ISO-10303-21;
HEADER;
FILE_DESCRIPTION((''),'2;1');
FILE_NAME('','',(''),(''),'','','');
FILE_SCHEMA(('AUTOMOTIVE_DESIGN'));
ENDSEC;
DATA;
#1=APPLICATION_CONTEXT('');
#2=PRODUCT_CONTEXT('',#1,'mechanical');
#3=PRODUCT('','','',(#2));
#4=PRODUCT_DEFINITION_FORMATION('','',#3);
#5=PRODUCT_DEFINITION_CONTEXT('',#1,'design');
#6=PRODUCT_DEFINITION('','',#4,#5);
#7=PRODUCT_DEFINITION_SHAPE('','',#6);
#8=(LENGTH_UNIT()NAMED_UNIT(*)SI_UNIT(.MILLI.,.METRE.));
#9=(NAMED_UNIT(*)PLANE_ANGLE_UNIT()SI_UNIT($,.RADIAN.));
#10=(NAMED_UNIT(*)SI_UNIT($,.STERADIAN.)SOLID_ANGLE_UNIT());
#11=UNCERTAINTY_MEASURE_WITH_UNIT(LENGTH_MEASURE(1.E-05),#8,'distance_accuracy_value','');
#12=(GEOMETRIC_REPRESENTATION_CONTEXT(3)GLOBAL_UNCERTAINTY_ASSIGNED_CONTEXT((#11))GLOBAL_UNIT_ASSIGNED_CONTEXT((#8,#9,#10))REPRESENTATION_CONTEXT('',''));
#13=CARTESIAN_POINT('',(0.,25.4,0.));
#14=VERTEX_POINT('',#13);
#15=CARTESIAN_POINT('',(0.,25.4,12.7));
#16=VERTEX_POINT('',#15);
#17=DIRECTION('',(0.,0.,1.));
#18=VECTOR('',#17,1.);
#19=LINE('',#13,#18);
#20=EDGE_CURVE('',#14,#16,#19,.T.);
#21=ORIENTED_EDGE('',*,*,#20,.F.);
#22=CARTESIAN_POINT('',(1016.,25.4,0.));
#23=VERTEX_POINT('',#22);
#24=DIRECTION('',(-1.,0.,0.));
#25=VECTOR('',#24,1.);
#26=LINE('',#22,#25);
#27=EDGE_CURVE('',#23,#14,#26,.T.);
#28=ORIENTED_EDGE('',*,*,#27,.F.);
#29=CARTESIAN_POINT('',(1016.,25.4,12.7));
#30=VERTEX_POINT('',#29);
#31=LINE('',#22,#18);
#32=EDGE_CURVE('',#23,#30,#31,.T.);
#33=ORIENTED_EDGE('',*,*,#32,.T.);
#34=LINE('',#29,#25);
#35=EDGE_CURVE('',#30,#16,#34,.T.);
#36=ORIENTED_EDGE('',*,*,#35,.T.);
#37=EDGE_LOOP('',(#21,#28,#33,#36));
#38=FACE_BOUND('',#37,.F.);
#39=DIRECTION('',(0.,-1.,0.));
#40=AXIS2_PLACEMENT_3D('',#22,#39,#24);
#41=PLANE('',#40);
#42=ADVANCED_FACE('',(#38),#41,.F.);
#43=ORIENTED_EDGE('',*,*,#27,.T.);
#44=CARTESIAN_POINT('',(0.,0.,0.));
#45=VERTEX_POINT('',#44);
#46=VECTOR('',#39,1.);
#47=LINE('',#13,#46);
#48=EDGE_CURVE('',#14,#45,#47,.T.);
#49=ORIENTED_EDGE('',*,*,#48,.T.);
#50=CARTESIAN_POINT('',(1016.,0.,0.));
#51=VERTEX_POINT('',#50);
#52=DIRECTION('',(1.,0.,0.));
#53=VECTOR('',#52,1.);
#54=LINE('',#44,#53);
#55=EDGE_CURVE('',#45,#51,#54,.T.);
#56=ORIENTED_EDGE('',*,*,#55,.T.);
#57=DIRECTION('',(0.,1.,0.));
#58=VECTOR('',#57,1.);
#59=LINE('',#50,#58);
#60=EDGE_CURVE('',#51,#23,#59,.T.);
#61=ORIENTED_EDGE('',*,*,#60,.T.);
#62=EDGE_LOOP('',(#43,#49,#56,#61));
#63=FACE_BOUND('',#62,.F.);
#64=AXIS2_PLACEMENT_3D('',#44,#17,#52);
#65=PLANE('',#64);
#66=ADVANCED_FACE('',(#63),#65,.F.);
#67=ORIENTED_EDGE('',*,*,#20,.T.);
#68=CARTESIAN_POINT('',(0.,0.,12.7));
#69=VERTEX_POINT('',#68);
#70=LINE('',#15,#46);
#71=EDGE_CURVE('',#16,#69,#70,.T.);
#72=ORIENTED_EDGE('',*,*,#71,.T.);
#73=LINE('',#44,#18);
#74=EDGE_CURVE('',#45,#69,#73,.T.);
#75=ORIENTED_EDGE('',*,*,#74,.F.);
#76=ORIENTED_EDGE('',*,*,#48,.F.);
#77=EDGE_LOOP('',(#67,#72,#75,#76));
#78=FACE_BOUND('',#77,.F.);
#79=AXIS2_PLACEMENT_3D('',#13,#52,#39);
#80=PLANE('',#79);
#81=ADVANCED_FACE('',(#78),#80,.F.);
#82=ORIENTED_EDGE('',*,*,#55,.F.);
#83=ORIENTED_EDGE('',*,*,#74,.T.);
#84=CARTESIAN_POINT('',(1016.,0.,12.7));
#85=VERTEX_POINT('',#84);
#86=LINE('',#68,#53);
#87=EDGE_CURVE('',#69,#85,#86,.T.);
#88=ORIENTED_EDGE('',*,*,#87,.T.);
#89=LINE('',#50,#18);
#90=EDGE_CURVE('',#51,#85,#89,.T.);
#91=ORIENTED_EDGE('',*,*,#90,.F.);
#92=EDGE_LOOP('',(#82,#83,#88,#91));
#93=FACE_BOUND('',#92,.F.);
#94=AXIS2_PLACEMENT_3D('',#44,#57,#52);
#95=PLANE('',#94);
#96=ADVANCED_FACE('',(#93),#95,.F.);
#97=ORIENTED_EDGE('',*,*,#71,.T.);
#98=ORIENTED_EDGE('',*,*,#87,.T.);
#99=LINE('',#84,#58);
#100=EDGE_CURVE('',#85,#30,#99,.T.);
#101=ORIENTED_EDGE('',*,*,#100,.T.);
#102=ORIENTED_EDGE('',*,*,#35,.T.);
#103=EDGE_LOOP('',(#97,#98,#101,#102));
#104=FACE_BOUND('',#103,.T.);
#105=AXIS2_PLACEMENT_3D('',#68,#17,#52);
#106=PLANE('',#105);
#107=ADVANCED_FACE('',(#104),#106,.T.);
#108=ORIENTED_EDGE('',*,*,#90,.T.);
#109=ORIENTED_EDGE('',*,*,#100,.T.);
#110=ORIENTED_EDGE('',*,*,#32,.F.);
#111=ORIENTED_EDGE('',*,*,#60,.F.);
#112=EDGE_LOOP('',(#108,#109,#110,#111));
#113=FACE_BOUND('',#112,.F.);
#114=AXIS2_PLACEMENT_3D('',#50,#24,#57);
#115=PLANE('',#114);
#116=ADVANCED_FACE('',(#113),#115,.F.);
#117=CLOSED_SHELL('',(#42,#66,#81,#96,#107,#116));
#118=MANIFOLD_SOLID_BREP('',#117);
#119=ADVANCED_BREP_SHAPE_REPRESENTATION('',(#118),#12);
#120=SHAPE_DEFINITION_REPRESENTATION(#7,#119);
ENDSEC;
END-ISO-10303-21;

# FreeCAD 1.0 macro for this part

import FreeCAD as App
import Part
import Sketcher
from FreeCAD import Vector
Q = App.Units.Quantity


def add_polygon(sketch, points):
    """Adds a closed chain of lines whose ends are joined by coincident constraints."""
    first, n = sketch.GeometryCount, len(points)
    for a, b in zip(points, points[1:] + points[:1]):
        sketch.addGeometry(Part.LineSegment(App.Vector(*a, 0), App.Vector(*b, 0)), False)
    for i in range(n):
        sketch.addConstraint(Sketcher.Constraint("Coincident", first + i, 2, first + (i + 1) % n, 1))

doc = App.newDocument("Part")
params = doc.addObject("Spreadsheet::Sheet", "Params")
for row, (alias, value) in enumerate([
    ("sketch1_width", "40 in"),
    ("sketch1_height", "1 in"),
    ("pad1_length", "0.5 in"),
], start=1):
    params.set(f"A{row}", alias)
    params.set(f"B{row}", "=" + value)
    params.setAlias(f"B{row}", alias)

body = doc.addObject("PartDesign::Body", "Body")

sketch1 = doc.addObject("Sketcher::SketchObject", "Sketch")
body.addObject(sketch1)
sketch1.AttachmentSupport = (doc.XY_Plane, [""])
sketch1.MapMode = "FlatFace"
add_polygon(sketch1, [(0, 25), (0, 0), (1016, 0), (1016, 25)])
sketch1.addConstraint(Sketcher.Constraint("Vertical", 0))
sketch1.addConstraint(Sketcher.Constraint("Horizontal", 1))
sketch1.addConstraint(Sketcher.Constraint("Vertical", 2))
sketch1.addConstraint(Sketcher.Constraint("Horizontal", 3))
sketch1.addConstraint(Sketcher.Constraint("Coincident", 0, 2, -1, 1))
sketch1.addConstraint(Sketcher.Constraint("DistanceX", 1, 1, 1, 2, Q("40 in")))
sketch1.addConstraint(Sketcher.Constraint("DistanceY", 0, 2, 0, 1, Q("1 in")))
sketch1.setExpression("Constraints[9]", "Params.sketch1_width")
sketch1.setExpression("Constraints[10]", "Params.sketch1_height")
pad1 = doc.addObject("PartDesign::Pad", "Pad")
body.addObject(pad1)
pad1.Profile = sketch1
pad1.setExpression("Length", "Params.pad1_length")

doc.recompute()
